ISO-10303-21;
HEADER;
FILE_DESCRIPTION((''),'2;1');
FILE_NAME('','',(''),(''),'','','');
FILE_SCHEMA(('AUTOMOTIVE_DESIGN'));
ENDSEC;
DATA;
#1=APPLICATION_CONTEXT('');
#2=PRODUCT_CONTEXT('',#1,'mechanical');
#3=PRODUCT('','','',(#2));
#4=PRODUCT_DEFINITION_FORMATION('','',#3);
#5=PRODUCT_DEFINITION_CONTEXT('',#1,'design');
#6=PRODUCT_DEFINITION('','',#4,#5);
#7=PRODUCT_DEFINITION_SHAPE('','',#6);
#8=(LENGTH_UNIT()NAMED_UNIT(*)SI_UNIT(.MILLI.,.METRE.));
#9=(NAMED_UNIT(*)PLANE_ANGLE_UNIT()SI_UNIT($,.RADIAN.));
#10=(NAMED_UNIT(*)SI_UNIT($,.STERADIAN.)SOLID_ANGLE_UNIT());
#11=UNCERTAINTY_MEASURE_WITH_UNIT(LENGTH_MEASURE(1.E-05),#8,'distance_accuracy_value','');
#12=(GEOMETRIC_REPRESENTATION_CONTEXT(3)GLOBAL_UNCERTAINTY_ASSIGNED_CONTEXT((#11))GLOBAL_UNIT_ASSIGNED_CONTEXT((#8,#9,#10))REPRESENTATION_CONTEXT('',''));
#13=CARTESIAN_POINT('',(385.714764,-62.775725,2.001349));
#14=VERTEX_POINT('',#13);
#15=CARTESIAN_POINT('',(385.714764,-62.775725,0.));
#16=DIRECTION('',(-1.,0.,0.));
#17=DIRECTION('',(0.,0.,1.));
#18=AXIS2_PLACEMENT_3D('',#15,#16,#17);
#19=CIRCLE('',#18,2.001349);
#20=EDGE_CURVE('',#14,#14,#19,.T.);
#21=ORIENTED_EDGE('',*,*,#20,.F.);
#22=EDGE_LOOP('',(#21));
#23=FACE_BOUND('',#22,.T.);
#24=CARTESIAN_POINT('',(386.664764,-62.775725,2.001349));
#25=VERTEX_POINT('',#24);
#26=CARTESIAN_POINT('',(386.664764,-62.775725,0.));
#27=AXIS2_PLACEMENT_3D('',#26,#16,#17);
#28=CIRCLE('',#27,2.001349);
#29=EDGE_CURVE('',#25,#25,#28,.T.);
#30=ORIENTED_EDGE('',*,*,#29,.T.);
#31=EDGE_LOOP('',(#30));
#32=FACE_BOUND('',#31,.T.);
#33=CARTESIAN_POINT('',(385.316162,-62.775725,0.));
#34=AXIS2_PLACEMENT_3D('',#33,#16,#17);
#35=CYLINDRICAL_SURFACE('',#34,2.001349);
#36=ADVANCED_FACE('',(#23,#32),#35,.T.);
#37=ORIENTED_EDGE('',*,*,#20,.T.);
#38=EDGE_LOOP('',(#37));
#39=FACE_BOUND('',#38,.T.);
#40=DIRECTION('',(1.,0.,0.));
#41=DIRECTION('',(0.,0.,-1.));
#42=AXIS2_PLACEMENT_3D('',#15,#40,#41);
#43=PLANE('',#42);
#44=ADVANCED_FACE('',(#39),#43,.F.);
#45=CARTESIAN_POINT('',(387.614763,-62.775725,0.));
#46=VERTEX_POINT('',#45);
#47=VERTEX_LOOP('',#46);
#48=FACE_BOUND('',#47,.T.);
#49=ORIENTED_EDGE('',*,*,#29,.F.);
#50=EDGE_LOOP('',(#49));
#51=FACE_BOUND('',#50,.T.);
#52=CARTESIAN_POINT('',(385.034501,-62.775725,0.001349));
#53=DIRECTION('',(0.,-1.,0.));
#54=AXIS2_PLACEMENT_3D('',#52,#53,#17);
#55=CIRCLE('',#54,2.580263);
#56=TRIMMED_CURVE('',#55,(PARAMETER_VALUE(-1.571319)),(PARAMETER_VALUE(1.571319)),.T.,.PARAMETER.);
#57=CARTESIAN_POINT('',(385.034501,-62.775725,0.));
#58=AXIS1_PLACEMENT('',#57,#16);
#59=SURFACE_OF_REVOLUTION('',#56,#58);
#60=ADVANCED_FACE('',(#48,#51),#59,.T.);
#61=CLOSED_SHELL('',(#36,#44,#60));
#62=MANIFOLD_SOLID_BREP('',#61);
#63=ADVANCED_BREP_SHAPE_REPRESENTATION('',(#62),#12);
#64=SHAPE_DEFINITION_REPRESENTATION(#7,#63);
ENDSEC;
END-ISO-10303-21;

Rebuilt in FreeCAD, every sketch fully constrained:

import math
import FreeCAD as App
import Part
import Sketcher
from FreeCAD import Vector
Q = App.Units.Quantity

doc = App.newDocument("Part")
body = doc.addObject("PartDesign::Body", "Body")

# Sketch on XY plane
sketch1 = body.newObject("Sketcher::SketchObject", "Sketch")
sketch1.AttachmentSupport = (doc.getObject("XY_Plane"), [""])
sketch1.MapMode = "FlatFace"
sketch1.addGeometry(Part.LineSegment(Vector(385.714764, -60.774376, 0), Vector(385.714764, -62.775725, 0)), False)
sketch1.addGeometry(Part.LineSegment(Vector(385.714764, -62.775725, 0), Vector(387.614763, -62.775725, 0)), False)
sketch1.addGeometry(Part.ArcOfCircle(Part.Circle(Vector(385.034501, -62.774376, 0), Vector(0, 0, 1), 2.580263), math.radians(-0.029949), math.radians(50.815436)), False)
sketch1.addGeometry(Part.LineSegment(Vector(386.664764, -60.774376, 0), Vector(385.714764, -60.774376, 0)), False)
sketch1.addGeometry(Part.LineSegment(Vector(385.034501, -62.775725, 0), Vector(387.614763, -62.775725, 0)), True)  # axis
sketch1.addConstraint(Sketcher.Constraint("Coincident", 0, 2, 1, 1))
sketch1.addConstraint(Sketcher.Constraint("Coincident", 1, 2, 2, 1))
sketch1.addConstraint(Sketcher.Constraint("Coincident", 2, 2, 3, 1))
sketch1.addConstraint(Sketcher.Constraint("Coincident", 3, 2, 0, 1))
sketch1.addConstraint(Sketcher.Constraint("Vertical", 0))
sketch1.addConstraint(Sketcher.Constraint("Horizontal", 1))
sketch1.addConstraint(Sketcher.Constraint("Horizontal", 3))
sketch1.addConstraint(Sketcher.Constraint("Horizontal", 4))
sketch1.addConstraint(Sketcher.Constraint("Coincident", 4, 2, 1, 2))
sketch1.addConstraint(Sketcher.Constraint("Vertical", 2, 3, 4, 1))
sketch1.addConstraint(Sketcher.Constraint("DistanceX", 1, 1, 1, 2, Q("1.9 mm")))
sketch1.addConstraint(Sketcher.Constraint("DistanceY", 2, 3, 2, 2, Q("2 mm")))
sketch1.addConstraint(Sketcher.Constraint("DistanceX", 3, 2, 3, 1, Q("0.95 mm")))
sketch1.addConstraint(Sketcher.Constraint("DistanceY", 0, 2, 0, 1, Q("2.001349 mm")))
sketch1.addConstraint(Sketcher.Constraint("DistanceX", -1, 1, 2, 3, Q("385.034501 mm")))
sketch1.addConstraint(Sketcher.Constraint("DistanceY", 2, 3, -1, 1, Q("62.774376 mm")))
revolution = body.newObject("PartDesign::Revolution", "Revolution")
revolution.Profile = sketch1
revolution.ReferenceAxis = (sketch1, ["Axis0"])
revolution.Angle = 360

doc.recompute()
